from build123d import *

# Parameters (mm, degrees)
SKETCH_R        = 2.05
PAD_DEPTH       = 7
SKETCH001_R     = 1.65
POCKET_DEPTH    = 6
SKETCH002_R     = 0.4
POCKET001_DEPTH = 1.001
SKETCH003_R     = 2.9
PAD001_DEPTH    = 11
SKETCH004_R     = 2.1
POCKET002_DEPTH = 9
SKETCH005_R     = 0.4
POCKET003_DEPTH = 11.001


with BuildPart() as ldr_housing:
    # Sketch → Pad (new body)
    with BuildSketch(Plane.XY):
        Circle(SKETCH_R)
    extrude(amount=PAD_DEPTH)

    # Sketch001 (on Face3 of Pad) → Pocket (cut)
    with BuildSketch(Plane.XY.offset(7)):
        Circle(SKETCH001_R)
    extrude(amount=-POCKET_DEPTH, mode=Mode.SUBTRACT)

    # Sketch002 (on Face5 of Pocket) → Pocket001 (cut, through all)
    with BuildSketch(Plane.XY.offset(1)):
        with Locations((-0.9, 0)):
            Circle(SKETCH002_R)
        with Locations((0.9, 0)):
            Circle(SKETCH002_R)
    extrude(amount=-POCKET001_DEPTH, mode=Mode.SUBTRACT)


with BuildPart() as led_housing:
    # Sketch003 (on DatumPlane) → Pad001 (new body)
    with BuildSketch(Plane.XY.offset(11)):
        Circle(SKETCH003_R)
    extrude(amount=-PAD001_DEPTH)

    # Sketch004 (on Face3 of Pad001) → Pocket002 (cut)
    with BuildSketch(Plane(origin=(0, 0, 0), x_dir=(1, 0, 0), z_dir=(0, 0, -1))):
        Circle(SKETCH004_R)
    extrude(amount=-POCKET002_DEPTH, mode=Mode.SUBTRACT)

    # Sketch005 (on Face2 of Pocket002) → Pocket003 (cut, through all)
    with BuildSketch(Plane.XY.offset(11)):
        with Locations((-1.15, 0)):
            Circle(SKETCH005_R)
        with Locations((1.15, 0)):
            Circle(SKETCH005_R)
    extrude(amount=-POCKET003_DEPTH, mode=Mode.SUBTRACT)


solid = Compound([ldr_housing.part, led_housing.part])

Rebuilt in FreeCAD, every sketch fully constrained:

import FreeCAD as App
import Part
import Sketcher
Q = App.Units.Quantity

doc = App.newDocument("Part")
body = doc.addObject("PartDesign::Body", "Body")

# Sketch on XY plane
sketch1 = body.newObject("Sketcher::SketchObject", "Sketch")
sketch1.AttachmentSupport = (doc.getObject("XY_Plane"), [""])
sketch1.MapMode = "FlatFace"
sketch1.addGeometry(Part.Circle(App.Vector(0, 0, 0), App.Vector(0, 0, 1), 2.05), False)
sketch1.addConstraint([
    Sketcher.Constraint("Coincident", 0, 3, -1, 1),
    Sketcher.Constraint("Diameter", 0, Q("4.1 mm")),
])
pad1 = body.newObject("PartDesign::Pad", "Pad")
pad1.Profile = sketch1
pad1.Length = 7

# Sketch on XY plane
sketch2 = body.newObject("Sketcher::SketchObject", "Sketch001")
sketch2.AttachmentSupport = (doc.getObject("XY_Plane"), [""])
sketch2.MapMode = "FlatFace"
sketch2.AttachmentOffset = App.Placement(App.Vector(0, 0, 7), App.Rotation())
sketch2.addGeometry(Part.Circle(App.Vector(0, 0, 0), App.Vector(0, 0, 1), 1.65), False)
sketch2.addConstraint([
    Sketcher.Constraint("Coincident", 0, 3, -1, 1),
    Sketcher.Constraint("Diameter", 0, Q("3.3 mm")),
])
pocket1 = body.newObject("PartDesign::Pocket", "Pocket")
pocket1.Profile = sketch2
pocket1.Length = 6

# Sketch on XY plane
sketch3 = body.newObject("Sketcher::SketchObject", "Sketch002")
sketch3.AttachmentSupport = (doc.getObject("XY_Plane"), [""])
sketch3.MapMode = "FlatFace"
sketch3.AttachmentOffset = App.Placement(App.Vector(0, 0, 1), App.Rotation())
sketch3.addGeometry([
    Part.Circle(App.Vector(-0.9, 0, 0), App.Vector(0, 0, 1), 0.4),
    Part.Circle(App.Vector(0.9, 0, 0), App.Vector(0, 0, 1), 0.4),
], False)
sketch3.addConstraint([
    Sketcher.Constraint("Equal", 0, 1),
    Sketcher.Constraint("Symmetric", 0, 3, 1, 3, -1, 1),
    Sketcher.Constraint("PointOnObject", 0, 3, -1),
    Sketcher.Constraint("Diameter", 0, Q("0.8 mm")),
    Sketcher.Constraint("DistanceX", 0, 3, -1, 1, Q("0.9 mm")),
])
pocket2 = body.newObject("PartDesign::Pocket", "Pocket001")
pocket2.Profile = sketch3
pocket2.Type = "ThroughAll"
body2 = doc.addObject("PartDesign::Body", "Body001")

# Sketch on XY plane
sketch4 = body2.newObject("Sketcher::SketchObject", "Sketch003")
sketch4.AttachmentSupport = (doc.getObject("XY_Plane001"), [""])
sketch4.MapMode = "FlatFace"
sketch4.AttachmentOffset = App.Placement(App.Vector(0, 0, 11), App.Rotation())
sketch4.addGeometry(Part.Circle(App.Vector(0, 0, 0), App.Vector(0, 0, 1), 2.9), False)
sketch4.addConstraint([
    Sketcher.Constraint("Coincident", 0, 3, -1, 1),
    Sketcher.Constraint("Diameter", 0, Q("5.8 mm")),
])
pad2 = body2.newObject("PartDesign::Pad", "Pad001")
pad2.Profile = sketch4
pad2.Length = 11
pad2.Reversed = True

# Sketch on XY plane
sketch5 = body2.newObject("Sketcher::SketchObject", "Sketch004")
sketch5.AttachmentSupport = (doc.getObject("XY_Plane001"), [""])
sketch5.MapMode = "FlatFace"
sketch5.addGeometry(Part.Circle(App.Vector(0, 0, 0), App.Vector(0, 0, 1), 2.1), False)
sketch5.addConstraint([
    Sketcher.Constraint("Coincident", 0, 3, -1, 1),
    Sketcher.Constraint("Diameter", 0, Q("4.2 mm")),
])
pocket3 = body2.newObject("PartDesign::Pocket", "Pocket002")
pocket3.Profile = sketch5
pocket3.Length = 9
pocket3.Reversed = True

# Sketch on XY plane
sketch6 = body2.newObject("Sketcher::SketchObject", "Sketch005")
sketch6.AttachmentSupport = (doc.getObject("XY_Plane001"), [""])
sketch6.MapMode = "FlatFace"
sketch6.AttachmentOffset = App.Placement(App.Vector(0, 0, 11), App.Rotation())
sketch6.addGeometry([
    Part.Circle(App.Vector(-1.15, 0, 0), App.Vector(0, 0, 1), 0.4),
    Part.Circle(App.Vector(1.15, 0, 0), App.Vector(0, 0, 1), 0.4),
], False)
sketch6.addConstraint([
    Sketcher.Constraint("Equal", 0, 1),
    Sketcher.Constraint("Symmetric", 0, 3, 1, 3, -1, 1),
    Sketcher.Constraint("PointOnObject", 0, 3, -1),
    Sketcher.Constraint("Diameter", 0, Q("0.8 mm")),
    Sketcher.Constraint("DistanceX", 0, 3, 1, 3, Q("2.3 mm")),
])
pocket4 = body2.newObject("PartDesign::Pocket", "Pocket003")
pocket4.Profile = sketch6
pocket4.Type = "ThroughAll"

doc.recompute()
